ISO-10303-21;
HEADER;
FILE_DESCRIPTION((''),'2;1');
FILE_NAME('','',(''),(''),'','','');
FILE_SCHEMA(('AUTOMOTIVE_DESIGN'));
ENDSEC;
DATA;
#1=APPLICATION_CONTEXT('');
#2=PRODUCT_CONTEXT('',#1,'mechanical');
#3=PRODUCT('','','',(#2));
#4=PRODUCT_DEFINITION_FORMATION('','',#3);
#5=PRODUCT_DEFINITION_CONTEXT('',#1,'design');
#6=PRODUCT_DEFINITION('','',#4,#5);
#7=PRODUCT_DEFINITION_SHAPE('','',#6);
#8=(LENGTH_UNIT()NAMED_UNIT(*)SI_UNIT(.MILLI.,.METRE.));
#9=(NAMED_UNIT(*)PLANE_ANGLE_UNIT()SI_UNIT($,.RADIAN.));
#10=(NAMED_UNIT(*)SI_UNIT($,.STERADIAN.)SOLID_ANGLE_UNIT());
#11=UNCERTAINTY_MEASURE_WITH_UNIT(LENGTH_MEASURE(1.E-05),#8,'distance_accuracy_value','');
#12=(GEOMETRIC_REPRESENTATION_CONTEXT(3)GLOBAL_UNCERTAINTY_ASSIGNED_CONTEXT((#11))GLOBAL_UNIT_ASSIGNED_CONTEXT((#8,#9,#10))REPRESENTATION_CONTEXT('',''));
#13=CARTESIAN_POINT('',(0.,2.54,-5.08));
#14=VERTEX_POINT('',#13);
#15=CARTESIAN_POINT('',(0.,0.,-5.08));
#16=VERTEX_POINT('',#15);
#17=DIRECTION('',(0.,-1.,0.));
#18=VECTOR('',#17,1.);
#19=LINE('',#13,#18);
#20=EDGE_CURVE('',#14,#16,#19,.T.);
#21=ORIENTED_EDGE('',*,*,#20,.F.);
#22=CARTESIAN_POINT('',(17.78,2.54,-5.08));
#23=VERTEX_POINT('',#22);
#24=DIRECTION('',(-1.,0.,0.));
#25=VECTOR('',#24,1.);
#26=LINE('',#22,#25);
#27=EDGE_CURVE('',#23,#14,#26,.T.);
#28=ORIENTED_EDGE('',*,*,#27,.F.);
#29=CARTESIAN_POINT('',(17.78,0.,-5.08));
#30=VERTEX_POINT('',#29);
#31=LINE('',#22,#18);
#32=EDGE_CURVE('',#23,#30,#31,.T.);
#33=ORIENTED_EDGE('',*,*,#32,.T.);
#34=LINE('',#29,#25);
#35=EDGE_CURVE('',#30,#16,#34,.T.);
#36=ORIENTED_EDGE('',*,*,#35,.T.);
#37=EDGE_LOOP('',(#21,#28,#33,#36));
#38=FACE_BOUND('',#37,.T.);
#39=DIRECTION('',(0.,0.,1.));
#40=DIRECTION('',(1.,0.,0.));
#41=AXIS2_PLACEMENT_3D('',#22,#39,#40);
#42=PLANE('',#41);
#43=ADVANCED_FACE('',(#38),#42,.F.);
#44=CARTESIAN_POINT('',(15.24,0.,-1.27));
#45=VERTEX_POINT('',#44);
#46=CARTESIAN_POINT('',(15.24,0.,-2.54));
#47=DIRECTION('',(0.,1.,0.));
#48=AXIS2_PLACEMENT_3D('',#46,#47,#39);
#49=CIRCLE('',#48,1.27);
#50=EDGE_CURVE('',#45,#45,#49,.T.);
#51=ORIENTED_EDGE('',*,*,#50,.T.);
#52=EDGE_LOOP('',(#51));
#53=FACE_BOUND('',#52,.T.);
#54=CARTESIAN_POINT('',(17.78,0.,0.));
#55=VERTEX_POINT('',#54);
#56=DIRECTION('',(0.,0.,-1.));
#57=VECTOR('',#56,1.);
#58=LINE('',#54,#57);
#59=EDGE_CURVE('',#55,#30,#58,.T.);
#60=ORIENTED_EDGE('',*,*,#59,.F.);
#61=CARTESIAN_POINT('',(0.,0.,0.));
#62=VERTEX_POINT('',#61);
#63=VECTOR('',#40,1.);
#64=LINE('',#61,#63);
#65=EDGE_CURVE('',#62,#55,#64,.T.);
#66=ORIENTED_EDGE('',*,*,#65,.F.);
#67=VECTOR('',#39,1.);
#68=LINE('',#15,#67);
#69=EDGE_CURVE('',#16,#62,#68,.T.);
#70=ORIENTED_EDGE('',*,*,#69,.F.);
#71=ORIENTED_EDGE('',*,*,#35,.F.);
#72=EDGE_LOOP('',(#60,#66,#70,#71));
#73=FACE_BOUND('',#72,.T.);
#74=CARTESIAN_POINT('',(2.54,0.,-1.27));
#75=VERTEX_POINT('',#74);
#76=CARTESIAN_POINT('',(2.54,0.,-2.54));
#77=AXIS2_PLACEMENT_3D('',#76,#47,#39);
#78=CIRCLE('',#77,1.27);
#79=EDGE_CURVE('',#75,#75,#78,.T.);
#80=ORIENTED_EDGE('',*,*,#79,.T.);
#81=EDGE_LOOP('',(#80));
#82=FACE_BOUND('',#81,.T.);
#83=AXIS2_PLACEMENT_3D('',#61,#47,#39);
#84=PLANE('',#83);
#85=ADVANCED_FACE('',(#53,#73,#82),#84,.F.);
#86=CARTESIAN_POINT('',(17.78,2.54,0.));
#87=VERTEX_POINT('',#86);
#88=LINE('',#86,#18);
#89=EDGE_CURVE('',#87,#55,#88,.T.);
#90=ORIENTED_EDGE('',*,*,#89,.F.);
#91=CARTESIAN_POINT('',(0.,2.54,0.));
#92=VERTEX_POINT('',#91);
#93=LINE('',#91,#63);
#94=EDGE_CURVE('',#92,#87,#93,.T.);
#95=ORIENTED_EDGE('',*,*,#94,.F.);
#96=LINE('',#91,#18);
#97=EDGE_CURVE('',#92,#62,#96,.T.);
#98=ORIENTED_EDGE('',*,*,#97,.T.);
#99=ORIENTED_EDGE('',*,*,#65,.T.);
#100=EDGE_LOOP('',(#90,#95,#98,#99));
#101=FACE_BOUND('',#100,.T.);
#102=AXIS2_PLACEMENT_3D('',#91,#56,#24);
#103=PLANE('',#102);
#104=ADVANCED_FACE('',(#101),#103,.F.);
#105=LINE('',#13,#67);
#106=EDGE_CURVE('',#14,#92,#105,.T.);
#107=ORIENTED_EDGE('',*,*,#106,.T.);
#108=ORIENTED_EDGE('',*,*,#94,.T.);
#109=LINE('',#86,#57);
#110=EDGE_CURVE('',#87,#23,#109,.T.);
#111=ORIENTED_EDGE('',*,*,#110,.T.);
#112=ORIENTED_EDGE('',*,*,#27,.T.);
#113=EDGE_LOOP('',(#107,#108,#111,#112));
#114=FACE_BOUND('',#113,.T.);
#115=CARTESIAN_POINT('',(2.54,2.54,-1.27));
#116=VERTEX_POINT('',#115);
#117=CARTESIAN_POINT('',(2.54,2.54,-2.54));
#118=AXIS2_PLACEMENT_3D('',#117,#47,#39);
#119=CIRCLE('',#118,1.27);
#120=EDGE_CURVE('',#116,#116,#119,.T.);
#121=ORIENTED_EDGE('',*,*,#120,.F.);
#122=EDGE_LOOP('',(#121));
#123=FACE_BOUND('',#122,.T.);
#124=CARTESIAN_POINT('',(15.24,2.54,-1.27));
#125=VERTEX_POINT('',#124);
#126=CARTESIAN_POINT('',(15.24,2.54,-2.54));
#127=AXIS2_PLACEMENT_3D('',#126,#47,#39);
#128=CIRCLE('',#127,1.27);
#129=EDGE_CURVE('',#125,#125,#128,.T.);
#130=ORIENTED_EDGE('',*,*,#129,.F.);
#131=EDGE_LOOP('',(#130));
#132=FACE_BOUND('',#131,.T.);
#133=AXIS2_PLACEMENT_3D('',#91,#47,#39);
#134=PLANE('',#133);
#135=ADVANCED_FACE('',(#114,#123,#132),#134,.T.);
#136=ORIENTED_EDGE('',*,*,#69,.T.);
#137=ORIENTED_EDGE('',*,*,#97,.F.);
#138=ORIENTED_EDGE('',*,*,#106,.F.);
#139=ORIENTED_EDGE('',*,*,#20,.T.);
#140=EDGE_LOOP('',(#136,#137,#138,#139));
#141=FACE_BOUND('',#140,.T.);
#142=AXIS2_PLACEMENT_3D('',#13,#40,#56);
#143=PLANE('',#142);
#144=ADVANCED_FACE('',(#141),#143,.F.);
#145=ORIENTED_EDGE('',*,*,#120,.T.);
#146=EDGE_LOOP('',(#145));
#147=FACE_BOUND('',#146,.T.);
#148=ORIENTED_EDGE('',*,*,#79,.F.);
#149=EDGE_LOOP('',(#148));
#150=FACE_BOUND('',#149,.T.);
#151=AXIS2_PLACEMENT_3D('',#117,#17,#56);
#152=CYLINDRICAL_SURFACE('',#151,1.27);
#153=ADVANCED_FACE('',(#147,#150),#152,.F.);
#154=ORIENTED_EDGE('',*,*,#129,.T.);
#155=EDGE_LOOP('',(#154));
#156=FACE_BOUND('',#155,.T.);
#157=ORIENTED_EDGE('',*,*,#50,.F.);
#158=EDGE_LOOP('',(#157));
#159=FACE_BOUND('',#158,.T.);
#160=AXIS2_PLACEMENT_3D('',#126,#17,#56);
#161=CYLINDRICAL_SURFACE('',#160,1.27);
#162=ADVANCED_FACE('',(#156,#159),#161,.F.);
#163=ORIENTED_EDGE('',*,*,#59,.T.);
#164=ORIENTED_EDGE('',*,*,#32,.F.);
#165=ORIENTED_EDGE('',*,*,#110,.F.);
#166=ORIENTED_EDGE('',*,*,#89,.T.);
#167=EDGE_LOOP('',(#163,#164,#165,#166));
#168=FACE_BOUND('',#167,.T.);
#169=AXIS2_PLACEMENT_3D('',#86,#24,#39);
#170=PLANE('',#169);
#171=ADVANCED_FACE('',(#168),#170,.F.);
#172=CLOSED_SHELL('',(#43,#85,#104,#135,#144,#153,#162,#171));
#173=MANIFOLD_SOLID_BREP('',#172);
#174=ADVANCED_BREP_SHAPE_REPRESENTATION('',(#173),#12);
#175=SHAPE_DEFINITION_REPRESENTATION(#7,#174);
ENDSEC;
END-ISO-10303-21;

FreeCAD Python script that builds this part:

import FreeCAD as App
import Part
import Sketcher
from FreeCAD import Vector
Q = App.Units.Quantity

doc = App.newDocument("Part")
body = doc.addObject("PartDesign::Body", "Body")

# Sketch on XZ plane
sketch1 = body.newObject("Sketcher::SketchObject", "Sketch")
sketch1.AttachmentSupport = (doc.getObject("XZ_Plane"), [""])
sketch1.MapMode = "FlatFace"
sketch1.addGeometry([
    Part.LineSegment(Vector(0, -5.1, 0), Vector(0, 0, 0)),  # 0
    Part.LineSegment(Vector(0, 0, 0), Vector(17.8, 0, 0)),  # 1
    Part.LineSegment(Vector(17.8, 0, 0), Vector(17.8, -5.1, 0)),  # 2
    Part.LineSegment(Vector(17.8, -5.1, 0), Vector(0, -5.1, 0)),  # 3
    Part.Circle(Vector(2.5, -2.5, 0), Vector(0, 0, 1), 1.3),  # 4
    Part.Circle(Vector(15.2, -2.5, 0), Vector(0, 0, 1), 1.3),  # 5
], False)
sketch1.addConstraint([
    Sketcher.Constraint("Coincident", 0, 2, 1, 1),
    Sketcher.Constraint("Coincident", 1, 2, 2, 1),
    Sketcher.Constraint("Coincident", 2, 2, 3, 1),
    Sketcher.Constraint("Coincident", 3, 2, 0, 1),
    Sketcher.Constraint("Vertical", 0),
    Sketcher.Constraint("Horizontal", 1),
    Sketcher.Constraint("Vertical", 2),
    Sketcher.Constraint("Horizontal", 3),
    Sketcher.Constraint("Coincident", 0, 2, -1, 1),
    Sketcher.Constraint("Equal", 4, 5),
    Sketcher.Constraint("Horizontal", 4, 3, 5, 3),
    Sketcher.Constraint("Diameter", 4, Q("0.1 in")),
    Sketcher.Constraint("DistanceX", 1, 1, 1, 2, Q("0.7 in")),
    Sketcher.Constraint("DistanceY", 0, 1, 0, 2, Q("0.2 in")),
    Sketcher.Constraint("DistanceX", -1, 1, 4, 3, Q("0.1 in")),
    Sketcher.Constraint("DistanceY", 4, 3, -1, 1, Q("0.1 in")),
    Sketcher.Constraint("DistanceX", -1, 1, 5, 3, Q("0.6 in")),
])
pad1 = body.newObject("PartDesign::Pad", "Pad")
pad1.Profile = sketch1
pad1.Length = Q("0.1 in")
pad1.Reversed = True

doc.recompute()
